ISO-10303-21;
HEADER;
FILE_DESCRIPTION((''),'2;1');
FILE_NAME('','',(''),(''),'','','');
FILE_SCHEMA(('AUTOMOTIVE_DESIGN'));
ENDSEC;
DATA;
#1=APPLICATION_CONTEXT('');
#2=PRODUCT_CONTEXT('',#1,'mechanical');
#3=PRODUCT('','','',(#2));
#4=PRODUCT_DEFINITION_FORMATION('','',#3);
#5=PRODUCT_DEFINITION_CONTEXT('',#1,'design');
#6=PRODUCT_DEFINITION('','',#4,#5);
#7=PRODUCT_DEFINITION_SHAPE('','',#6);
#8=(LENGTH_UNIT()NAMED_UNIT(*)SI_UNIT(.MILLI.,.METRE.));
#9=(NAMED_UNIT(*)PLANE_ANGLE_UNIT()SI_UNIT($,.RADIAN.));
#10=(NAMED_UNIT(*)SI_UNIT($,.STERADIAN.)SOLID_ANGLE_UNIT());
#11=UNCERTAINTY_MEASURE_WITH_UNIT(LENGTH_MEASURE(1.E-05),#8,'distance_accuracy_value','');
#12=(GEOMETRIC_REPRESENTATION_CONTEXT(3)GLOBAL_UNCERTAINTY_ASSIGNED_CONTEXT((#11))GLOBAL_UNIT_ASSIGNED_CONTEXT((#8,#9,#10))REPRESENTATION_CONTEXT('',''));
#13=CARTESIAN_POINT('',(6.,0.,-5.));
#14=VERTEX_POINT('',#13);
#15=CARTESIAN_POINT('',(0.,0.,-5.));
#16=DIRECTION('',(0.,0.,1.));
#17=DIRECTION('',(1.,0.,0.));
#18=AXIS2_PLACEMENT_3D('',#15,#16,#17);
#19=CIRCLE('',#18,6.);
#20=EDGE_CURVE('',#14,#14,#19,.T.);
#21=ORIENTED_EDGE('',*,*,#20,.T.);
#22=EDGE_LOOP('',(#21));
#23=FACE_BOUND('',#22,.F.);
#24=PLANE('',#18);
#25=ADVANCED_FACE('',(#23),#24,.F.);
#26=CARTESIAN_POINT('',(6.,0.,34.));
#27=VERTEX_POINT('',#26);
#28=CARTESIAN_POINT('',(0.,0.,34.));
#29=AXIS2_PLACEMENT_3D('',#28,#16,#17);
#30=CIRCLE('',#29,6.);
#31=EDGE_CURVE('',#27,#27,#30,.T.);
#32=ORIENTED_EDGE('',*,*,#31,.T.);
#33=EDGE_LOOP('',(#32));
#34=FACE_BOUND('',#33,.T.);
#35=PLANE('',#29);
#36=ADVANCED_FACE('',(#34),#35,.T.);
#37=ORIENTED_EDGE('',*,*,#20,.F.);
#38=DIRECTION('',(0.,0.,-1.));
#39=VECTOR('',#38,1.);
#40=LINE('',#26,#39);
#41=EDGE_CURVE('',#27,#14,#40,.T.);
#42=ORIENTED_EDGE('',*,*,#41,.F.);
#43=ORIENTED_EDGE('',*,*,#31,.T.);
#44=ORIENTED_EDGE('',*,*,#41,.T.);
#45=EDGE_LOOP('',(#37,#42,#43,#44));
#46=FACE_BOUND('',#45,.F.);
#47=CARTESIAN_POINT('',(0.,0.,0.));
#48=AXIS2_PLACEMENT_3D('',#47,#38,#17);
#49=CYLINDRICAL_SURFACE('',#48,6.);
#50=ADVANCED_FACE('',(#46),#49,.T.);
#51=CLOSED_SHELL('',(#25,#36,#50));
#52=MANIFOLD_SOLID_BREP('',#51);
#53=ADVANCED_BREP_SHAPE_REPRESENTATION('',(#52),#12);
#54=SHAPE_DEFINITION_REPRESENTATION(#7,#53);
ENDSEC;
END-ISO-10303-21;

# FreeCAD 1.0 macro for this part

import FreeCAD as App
import Part
import Sketcher

V = App.Vector

doc = App.newDocument("Part")
params = doc.addObject("Spreadsheet::Sheet", "Params")
for row, (alias, value) in enumerate([
    ("sketch1_diameter", "12 mm"),
    ("pad1_length", "25 mm"),
    ("sketch2_diameter", "12 mm"),
    ("pad2_length", "9 mm"),
    ("sketch3_diameter", "12 mm"),
    ("pad3_length", "5 mm"),
], start=1):
    params.set(f"A{row}", alias)
    params.set(f"B{row}", "=" + value)
    params.setAlias(f"B{row}", alias)

body = doc.addObject("PartDesign::Body", "Body")

sketch1 = doc.addObject("Sketcher::SketchObject", "Sketch")
body.addObject(sketch1)
sketch1.AttachmentSupport = (doc.XY_Plane, [""])
sketch1.MapMode = "FlatFace"
sketch1.AttachmentOffset = App.Placement(V(0, 0, 9), App.Rotation())
sketch1.addGeometry(Part.Circle(V(0, 0, 0), V(0, 0, 1), 6), False)
sketch1.addConstraint(Sketcher.Constraint("Coincident", 0, 3, -1, 1))
sketch1.addConstraint(Sketcher.Constraint("Diameter", 0, 12.0))
sketch1.setExpression("Constraints[1]", "Params.sketch1_diameter")
pad1 = doc.addObject("PartDesign::Pad", "Pad")
body.addObject(pad1)
pad1.Profile = sketch1
pad1.setExpression("Length", "Params.pad1_length")
body2 = doc.addObject("PartDesign::Body", "Body001")

sketch2 = doc.addObject("Sketcher::SketchObject", "Sketch001")
body2.addObject(sketch2)
sketch2.AttachmentSupport = (doc.getObject("XY_Plane001"), [""])
sketch2.MapMode = "FlatFace"
sketch2.addGeometry(Part.Circle(V(0, 0, 0), V(0, 0, 1), 6), False)
sketch2.addConstraint(Sketcher.Constraint("Coincident", 0, 3, -1, 1))
sketch2.addConstraint(Sketcher.Constraint("Diameter", 0, 12.0))
sketch2.setExpression("Constraints[1]", "Params.sketch2_diameter")
pad2 = doc.addObject("PartDesign::Pad", "Pad001")
body2.addObject(pad2)
pad2.Profile = sketch2
pad2.setExpression("Length", "Params.pad2_length")
body3 = doc.addObject("PartDesign::Body", "Body002")
body3.AllowCompound = True

sketch3 = doc.addObject("Sketcher::SketchObject", "Sketch002")
body3.addObject(sketch3)
sketch3.AttachmentSupport = (doc.getObject("XY_Plane002"), [""])
sketch3.MapMode = "FlatFace"
sketch3.AttachmentOffset = App.Placement(V(0, 0, -5), App.Rotation())
sketch3.addGeometry(Part.Circle(V(0, 0, 0), V(0, 0, 1), 6), False)
sketch3.addConstraint(Sketcher.Constraint("Coincident", 0, 3, -1, 1))
sketch3.addConstraint(Sketcher.Constraint("Diameter", 0, 12.0))
sketch3.setExpression("Constraints[1]", "Params.sketch3_diameter")
pad3 = doc.addObject("PartDesign::Pad", "Pad002")
body3.addObject(pad3)
pad3.Profile = sketch3
pad3.setExpression("Length", "Params.pad3_length")
doc.recompute()

boolean = doc.addObject("PartDesign::Boolean", "Boolean")
body3.addObject(boolean)
boolean.Type = "Fuse"
boolean.addObjects([body])
doc.recompute()

boolean2 = doc.addObject("PartDesign::Boolean", "Boolean001")
body3.addObject(boolean2)
boolean2.Type = "Fuse"
boolean2.addObjects([body2])

doc.recompute()
